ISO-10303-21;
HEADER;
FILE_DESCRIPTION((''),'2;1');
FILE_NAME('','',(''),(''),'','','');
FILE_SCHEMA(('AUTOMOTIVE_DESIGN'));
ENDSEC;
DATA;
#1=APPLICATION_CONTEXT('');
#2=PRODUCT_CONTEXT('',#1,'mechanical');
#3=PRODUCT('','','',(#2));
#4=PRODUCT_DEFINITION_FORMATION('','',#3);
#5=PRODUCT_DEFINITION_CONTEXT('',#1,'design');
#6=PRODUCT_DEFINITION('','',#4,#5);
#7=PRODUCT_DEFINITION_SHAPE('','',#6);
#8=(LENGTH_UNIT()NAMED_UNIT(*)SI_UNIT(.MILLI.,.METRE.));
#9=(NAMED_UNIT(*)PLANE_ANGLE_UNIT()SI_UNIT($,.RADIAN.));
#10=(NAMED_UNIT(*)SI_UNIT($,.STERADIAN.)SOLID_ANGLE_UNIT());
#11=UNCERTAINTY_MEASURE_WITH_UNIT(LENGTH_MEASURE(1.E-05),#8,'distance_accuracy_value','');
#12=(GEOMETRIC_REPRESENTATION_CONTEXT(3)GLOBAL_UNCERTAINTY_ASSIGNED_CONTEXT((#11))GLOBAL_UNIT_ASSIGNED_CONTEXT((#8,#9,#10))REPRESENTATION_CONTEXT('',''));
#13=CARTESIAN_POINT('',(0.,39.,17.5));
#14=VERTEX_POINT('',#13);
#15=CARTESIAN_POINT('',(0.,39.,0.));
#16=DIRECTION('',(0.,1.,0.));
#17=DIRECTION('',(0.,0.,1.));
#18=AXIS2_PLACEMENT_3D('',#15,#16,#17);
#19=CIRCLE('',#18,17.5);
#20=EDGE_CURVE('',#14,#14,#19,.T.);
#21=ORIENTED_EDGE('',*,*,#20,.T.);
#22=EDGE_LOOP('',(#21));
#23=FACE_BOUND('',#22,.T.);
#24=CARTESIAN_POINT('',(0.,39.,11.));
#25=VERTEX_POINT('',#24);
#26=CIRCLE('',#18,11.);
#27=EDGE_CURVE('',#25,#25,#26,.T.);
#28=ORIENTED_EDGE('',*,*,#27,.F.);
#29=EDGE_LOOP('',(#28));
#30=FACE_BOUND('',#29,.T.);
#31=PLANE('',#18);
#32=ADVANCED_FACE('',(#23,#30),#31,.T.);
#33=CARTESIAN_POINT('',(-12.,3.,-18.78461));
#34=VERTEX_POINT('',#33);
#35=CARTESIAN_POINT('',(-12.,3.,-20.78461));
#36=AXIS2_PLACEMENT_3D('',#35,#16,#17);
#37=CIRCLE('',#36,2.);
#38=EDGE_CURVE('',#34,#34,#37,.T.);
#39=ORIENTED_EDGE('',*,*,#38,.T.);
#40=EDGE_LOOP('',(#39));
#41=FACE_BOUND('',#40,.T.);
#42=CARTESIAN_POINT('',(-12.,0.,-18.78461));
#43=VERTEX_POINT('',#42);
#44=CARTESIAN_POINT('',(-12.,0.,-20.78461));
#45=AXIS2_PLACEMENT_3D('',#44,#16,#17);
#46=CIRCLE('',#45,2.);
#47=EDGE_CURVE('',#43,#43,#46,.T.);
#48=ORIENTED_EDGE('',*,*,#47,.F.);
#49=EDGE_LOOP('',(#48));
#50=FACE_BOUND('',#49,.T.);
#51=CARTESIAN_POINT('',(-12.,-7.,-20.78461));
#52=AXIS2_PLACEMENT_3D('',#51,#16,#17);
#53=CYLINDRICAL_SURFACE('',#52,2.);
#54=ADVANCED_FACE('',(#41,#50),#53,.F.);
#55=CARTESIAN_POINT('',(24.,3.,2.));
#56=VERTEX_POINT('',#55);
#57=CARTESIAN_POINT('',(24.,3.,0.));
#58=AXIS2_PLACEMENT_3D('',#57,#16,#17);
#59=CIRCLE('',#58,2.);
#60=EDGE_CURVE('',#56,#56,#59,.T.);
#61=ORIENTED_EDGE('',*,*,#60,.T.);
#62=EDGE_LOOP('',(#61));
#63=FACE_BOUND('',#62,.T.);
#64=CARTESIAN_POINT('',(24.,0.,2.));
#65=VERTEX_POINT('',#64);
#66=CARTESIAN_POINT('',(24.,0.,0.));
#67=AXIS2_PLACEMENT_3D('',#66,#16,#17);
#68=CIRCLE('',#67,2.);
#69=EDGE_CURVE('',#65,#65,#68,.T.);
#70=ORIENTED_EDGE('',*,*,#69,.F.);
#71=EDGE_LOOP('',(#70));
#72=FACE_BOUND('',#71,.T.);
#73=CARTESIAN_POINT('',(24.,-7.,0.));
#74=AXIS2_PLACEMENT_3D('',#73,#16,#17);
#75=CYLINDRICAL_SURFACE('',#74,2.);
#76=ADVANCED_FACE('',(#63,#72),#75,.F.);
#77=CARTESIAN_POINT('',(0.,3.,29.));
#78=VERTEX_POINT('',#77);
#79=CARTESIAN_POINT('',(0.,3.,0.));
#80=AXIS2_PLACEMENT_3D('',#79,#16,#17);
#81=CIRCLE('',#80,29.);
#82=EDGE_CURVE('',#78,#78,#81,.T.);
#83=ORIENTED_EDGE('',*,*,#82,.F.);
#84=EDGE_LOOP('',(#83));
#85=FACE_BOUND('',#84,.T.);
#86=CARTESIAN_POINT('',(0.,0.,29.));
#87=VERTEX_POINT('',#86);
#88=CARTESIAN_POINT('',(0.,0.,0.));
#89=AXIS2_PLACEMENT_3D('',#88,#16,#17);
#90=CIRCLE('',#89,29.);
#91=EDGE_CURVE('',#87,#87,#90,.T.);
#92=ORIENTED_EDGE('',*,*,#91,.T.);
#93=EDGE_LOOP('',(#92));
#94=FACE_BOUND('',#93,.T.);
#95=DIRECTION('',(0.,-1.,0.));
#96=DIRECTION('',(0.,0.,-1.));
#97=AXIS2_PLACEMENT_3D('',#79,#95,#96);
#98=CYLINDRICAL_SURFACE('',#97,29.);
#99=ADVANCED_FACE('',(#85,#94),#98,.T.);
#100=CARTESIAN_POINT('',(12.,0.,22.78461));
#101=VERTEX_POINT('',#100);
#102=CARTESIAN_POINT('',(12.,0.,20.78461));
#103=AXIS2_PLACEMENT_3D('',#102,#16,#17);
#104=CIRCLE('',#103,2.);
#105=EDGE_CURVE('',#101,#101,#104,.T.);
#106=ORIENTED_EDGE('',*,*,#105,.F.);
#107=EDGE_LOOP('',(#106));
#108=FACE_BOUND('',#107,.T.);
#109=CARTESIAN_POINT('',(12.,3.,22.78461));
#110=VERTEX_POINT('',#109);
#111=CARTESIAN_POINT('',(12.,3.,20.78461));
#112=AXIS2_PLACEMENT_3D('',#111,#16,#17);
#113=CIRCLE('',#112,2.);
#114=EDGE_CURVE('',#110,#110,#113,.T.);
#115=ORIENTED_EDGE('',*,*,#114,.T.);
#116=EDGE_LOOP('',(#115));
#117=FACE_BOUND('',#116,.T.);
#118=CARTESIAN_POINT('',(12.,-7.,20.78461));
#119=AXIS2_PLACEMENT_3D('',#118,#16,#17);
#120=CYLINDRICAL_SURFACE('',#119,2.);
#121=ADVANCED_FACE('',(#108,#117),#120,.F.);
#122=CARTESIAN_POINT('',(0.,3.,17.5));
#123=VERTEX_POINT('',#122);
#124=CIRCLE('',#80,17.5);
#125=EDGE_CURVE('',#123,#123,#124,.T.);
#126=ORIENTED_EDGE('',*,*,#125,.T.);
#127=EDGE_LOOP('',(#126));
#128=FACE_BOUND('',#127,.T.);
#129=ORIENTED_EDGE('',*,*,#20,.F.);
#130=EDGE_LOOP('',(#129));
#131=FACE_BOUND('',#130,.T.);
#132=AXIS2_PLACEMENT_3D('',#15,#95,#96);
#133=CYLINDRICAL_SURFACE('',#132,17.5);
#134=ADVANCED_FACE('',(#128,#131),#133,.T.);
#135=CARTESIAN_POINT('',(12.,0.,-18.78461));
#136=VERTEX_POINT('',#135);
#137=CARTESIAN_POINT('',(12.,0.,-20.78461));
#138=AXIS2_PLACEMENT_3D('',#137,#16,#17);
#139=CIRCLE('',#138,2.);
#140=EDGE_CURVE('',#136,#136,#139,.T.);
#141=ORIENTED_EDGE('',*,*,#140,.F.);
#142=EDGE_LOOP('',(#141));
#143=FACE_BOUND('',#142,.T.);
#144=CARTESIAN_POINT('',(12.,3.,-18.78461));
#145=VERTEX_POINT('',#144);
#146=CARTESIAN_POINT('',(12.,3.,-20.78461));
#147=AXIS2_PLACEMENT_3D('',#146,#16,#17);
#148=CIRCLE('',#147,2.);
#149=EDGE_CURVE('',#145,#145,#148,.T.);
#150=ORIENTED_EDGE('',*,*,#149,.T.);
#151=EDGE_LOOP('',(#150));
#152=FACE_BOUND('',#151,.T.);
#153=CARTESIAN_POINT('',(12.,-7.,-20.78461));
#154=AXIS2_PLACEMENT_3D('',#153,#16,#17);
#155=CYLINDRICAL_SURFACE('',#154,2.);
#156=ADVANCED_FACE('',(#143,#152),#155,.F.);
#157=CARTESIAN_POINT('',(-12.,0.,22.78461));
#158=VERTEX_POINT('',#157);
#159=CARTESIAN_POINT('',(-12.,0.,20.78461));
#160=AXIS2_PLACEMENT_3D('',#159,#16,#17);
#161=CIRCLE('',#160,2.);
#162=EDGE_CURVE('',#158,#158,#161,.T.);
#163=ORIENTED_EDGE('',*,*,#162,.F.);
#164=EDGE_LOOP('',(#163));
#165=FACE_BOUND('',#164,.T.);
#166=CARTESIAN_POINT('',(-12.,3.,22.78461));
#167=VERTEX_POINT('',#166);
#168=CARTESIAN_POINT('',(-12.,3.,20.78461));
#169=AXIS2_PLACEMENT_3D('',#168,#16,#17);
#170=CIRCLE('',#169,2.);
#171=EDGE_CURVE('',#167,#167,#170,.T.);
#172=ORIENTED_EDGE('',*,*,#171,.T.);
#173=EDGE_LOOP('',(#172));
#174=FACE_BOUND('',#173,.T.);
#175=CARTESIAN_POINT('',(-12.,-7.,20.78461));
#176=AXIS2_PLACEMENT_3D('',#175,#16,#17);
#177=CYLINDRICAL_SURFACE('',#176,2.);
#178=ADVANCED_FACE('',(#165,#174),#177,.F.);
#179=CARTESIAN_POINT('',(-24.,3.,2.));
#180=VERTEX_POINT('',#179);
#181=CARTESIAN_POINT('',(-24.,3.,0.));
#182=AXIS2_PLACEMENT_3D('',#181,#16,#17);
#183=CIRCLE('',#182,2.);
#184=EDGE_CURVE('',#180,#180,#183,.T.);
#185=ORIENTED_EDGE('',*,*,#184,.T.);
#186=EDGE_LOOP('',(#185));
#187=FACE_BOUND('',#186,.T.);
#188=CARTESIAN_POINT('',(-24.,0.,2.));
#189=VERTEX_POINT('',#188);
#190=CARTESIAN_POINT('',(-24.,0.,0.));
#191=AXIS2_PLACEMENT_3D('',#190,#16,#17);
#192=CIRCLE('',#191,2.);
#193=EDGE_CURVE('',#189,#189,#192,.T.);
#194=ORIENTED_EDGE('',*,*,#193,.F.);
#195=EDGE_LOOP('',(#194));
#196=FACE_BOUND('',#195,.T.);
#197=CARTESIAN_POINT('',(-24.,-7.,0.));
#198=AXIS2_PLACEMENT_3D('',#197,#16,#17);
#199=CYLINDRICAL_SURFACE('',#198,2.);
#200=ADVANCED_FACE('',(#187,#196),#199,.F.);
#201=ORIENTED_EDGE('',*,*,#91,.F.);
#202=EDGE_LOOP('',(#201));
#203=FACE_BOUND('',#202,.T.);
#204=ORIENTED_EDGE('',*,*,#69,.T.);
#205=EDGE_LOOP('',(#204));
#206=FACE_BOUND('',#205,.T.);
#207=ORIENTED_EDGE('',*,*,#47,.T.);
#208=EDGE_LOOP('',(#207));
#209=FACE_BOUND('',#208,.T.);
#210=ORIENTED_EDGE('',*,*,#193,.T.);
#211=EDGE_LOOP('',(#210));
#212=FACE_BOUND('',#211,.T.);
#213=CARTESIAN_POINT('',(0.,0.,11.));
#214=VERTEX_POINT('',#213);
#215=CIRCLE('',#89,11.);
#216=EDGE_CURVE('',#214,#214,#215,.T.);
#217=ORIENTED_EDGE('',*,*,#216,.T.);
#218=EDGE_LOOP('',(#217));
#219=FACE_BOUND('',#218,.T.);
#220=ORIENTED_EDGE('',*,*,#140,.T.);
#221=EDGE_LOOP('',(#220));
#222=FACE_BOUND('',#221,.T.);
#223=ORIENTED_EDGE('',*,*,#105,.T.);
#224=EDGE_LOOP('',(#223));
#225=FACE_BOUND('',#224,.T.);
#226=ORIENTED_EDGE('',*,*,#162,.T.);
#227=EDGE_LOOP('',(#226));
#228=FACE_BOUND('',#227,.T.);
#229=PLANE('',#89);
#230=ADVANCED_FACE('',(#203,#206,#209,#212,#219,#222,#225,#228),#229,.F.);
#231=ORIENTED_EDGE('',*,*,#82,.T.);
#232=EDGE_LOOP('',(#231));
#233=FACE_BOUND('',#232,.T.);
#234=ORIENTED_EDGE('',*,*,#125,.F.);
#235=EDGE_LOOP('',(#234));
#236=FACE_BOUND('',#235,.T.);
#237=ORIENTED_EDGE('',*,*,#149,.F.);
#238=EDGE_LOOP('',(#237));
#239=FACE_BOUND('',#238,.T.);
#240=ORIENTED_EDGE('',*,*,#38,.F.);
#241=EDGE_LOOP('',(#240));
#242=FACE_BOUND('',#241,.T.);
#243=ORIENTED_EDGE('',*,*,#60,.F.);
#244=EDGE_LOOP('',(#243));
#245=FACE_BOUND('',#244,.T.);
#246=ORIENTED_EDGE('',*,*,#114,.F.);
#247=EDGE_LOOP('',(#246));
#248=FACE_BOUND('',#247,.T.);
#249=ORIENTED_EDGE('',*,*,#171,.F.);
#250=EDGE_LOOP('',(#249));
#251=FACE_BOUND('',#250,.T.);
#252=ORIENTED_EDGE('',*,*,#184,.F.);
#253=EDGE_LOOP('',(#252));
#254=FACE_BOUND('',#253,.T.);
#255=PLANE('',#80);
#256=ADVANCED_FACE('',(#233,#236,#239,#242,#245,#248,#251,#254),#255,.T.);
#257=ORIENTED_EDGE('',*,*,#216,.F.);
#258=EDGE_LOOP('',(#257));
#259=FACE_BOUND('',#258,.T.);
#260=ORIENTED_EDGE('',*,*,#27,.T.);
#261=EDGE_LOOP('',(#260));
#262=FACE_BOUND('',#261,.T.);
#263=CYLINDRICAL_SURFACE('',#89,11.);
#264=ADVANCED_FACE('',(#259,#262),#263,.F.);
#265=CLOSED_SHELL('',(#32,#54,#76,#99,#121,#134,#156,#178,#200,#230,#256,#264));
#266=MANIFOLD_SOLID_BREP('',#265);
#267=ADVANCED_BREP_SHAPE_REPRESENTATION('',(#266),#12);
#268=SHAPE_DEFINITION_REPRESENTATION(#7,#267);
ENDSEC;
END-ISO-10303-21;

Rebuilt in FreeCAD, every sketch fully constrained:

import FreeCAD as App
import Part
import Sketcher
Q = App.Units.Quantity

doc = App.newDocument("Part")
body = doc.addObject("PartDesign::Body", "Body")

# Sketch on XZ plane
sketch1 = body.newObject("Sketcher::SketchObject", "Sketch")
sketch1.AttachmentSupport = (doc.getObject("XZ_Plane"), [""])
sketch1.MapMode = "FlatFace"
sketch1.addGeometry(Part.Circle(App.Vector(0, 0, 0), App.Vector(0, 0, 1), 29), False)
sketch1.addConstraint([
    Sketcher.Constraint("Coincident", 0, 3, -1, 1),
    Sketcher.Constraint("Diameter", 0, Q("58 mm")),
])
pad1 = body.newObject("PartDesign::Pad", "Pad")
pad1.Profile = sketch1
pad1.Length = 3
pad1.Reversed = True

# Sketch on XZ plane
sketch2 = body.newObject("Sketcher::SketchObject", "Sketch001")
sketch2.AttachmentSupport = (doc.getObject("XZ_Plane"), [""])
sketch2.MapMode = "FlatFace"
sketch2.AttachmentOffset = App.Placement(App.Vector(0, 0, -3), App.Rotation())
sketch2.addGeometry(Part.Circle(App.Vector(0, 0, 0), App.Vector(0, 0, 1), 18), False)
sketch2.addConstraint([
    Sketcher.Constraint("Coincident", 0, 3, -1, 1),
    Sketcher.Constraint("Diameter", 0, Q("35 mm")),
])
pad2 = body.newObject("PartDesign::Pad", "Pad001")
pad2.Profile = sketch2
pad2.Length = 36
pad2.Reversed = True

# Sketch on XZ plane
sketch3 = body.newObject("Sketcher::SketchObject", "Sketch002")
sketch3.AttachmentSupport = (doc.getObject("XZ_Plane"), [""])
sketch3.MapMode = "FlatFace"
sketch3.AttachmentOffset = App.Placement(App.Vector(0, 0, -39), App.Rotation())
sketch3.addGeometry(Part.Circle(App.Vector(0, 0, 0), App.Vector(0, 0, 1), 11), False)
sketch3.addConstraint([
    Sketcher.Constraint("Coincident", 0, 3, -1, 1),
    Sketcher.Constraint("Diameter", 0, Q("22 mm")),
])
pocket1 = body.newObject("PartDesign::Pocket", "Pocket")
pocket1.Profile = sketch3
pocket1.Type = "ThroughAll"
pocket1.Reversed = True

# Sketch on XZ plane
sketch4 = body.newObject("Sketcher::SketchObject", "Sketch003")
sketch4.AttachmentSupport = (doc.getObject("XZ_Plane"), [""])
sketch4.MapMode = "FlatFace"
sketch4.AttachmentOffset = App.Placement(App.Vector(0, 0, -3), App.Rotation())
sketch4.addGeometry([
    Part.Circle(App.Vector(24, 0, 0), App.Vector(0, 0, 1), 2),  # 0
    Part.Circle(App.Vector(12, 20.8, 0), App.Vector(0, 0, 1), 2),  # 1
    Part.Circle(App.Vector(-12, 20.8, 0), App.Vector(0, 0, 1), 2),  # 2
    Part.Circle(App.Vector(-24, 0, 0), App.Vector(0, 0, 1), 2),  # 3
    Part.Circle(App.Vector(-12, -20.8, 0), App.Vector(0, 0, 1), 2),  # 4
    Part.Circle(App.Vector(12, -20.8, 0), App.Vector(0, 0, 1), 2),  # 5
], False)
sketch4.addConstraint([
    Sketcher.Constraint("Equal", 0, 1),
    Sketcher.Constraint("Equal", 1, 2),
    Sketcher.Constraint("Equal", 2, 3),
    Sketcher.Constraint("Equal", 3, 4),
    Sketcher.Constraint("Equal", 4, 5),
    Sketcher.Constraint("Symmetric", 0, 3, 3, 3, -1, 1),
    Sketcher.Constraint("Symmetric", 1, 3, 4, 3, -1, 1),
    Sketcher.Constraint("Symmetric", 2, 3, 5, 3, -1, 1),
    Sketcher.Constraint("Symmetric", 1, 3, 2, 3, -2),
    Sketcher.Constraint("PointOnObject", 0, 3, -1),
    Sketcher.Constraint("Diameter", 0, Q("4 mm")),
    Sketcher.Constraint("DistanceX", -1, 1, 0, 3, Q("24 mm")),
    Sketcher.Constraint("DistanceX", -1, 1, 1, 3, Q("12 mm")),
    Sketcher.Constraint("DistanceY", -1, 1, 1, 3, Q("20.78461 mm")),
])
pocket2 = body.newObject("PartDesign::Pocket", "Pocket001")
pocket2.Profile = sketch4
pocket2.Length = 10
pocket2.Reversed = True

doc.recompute()
